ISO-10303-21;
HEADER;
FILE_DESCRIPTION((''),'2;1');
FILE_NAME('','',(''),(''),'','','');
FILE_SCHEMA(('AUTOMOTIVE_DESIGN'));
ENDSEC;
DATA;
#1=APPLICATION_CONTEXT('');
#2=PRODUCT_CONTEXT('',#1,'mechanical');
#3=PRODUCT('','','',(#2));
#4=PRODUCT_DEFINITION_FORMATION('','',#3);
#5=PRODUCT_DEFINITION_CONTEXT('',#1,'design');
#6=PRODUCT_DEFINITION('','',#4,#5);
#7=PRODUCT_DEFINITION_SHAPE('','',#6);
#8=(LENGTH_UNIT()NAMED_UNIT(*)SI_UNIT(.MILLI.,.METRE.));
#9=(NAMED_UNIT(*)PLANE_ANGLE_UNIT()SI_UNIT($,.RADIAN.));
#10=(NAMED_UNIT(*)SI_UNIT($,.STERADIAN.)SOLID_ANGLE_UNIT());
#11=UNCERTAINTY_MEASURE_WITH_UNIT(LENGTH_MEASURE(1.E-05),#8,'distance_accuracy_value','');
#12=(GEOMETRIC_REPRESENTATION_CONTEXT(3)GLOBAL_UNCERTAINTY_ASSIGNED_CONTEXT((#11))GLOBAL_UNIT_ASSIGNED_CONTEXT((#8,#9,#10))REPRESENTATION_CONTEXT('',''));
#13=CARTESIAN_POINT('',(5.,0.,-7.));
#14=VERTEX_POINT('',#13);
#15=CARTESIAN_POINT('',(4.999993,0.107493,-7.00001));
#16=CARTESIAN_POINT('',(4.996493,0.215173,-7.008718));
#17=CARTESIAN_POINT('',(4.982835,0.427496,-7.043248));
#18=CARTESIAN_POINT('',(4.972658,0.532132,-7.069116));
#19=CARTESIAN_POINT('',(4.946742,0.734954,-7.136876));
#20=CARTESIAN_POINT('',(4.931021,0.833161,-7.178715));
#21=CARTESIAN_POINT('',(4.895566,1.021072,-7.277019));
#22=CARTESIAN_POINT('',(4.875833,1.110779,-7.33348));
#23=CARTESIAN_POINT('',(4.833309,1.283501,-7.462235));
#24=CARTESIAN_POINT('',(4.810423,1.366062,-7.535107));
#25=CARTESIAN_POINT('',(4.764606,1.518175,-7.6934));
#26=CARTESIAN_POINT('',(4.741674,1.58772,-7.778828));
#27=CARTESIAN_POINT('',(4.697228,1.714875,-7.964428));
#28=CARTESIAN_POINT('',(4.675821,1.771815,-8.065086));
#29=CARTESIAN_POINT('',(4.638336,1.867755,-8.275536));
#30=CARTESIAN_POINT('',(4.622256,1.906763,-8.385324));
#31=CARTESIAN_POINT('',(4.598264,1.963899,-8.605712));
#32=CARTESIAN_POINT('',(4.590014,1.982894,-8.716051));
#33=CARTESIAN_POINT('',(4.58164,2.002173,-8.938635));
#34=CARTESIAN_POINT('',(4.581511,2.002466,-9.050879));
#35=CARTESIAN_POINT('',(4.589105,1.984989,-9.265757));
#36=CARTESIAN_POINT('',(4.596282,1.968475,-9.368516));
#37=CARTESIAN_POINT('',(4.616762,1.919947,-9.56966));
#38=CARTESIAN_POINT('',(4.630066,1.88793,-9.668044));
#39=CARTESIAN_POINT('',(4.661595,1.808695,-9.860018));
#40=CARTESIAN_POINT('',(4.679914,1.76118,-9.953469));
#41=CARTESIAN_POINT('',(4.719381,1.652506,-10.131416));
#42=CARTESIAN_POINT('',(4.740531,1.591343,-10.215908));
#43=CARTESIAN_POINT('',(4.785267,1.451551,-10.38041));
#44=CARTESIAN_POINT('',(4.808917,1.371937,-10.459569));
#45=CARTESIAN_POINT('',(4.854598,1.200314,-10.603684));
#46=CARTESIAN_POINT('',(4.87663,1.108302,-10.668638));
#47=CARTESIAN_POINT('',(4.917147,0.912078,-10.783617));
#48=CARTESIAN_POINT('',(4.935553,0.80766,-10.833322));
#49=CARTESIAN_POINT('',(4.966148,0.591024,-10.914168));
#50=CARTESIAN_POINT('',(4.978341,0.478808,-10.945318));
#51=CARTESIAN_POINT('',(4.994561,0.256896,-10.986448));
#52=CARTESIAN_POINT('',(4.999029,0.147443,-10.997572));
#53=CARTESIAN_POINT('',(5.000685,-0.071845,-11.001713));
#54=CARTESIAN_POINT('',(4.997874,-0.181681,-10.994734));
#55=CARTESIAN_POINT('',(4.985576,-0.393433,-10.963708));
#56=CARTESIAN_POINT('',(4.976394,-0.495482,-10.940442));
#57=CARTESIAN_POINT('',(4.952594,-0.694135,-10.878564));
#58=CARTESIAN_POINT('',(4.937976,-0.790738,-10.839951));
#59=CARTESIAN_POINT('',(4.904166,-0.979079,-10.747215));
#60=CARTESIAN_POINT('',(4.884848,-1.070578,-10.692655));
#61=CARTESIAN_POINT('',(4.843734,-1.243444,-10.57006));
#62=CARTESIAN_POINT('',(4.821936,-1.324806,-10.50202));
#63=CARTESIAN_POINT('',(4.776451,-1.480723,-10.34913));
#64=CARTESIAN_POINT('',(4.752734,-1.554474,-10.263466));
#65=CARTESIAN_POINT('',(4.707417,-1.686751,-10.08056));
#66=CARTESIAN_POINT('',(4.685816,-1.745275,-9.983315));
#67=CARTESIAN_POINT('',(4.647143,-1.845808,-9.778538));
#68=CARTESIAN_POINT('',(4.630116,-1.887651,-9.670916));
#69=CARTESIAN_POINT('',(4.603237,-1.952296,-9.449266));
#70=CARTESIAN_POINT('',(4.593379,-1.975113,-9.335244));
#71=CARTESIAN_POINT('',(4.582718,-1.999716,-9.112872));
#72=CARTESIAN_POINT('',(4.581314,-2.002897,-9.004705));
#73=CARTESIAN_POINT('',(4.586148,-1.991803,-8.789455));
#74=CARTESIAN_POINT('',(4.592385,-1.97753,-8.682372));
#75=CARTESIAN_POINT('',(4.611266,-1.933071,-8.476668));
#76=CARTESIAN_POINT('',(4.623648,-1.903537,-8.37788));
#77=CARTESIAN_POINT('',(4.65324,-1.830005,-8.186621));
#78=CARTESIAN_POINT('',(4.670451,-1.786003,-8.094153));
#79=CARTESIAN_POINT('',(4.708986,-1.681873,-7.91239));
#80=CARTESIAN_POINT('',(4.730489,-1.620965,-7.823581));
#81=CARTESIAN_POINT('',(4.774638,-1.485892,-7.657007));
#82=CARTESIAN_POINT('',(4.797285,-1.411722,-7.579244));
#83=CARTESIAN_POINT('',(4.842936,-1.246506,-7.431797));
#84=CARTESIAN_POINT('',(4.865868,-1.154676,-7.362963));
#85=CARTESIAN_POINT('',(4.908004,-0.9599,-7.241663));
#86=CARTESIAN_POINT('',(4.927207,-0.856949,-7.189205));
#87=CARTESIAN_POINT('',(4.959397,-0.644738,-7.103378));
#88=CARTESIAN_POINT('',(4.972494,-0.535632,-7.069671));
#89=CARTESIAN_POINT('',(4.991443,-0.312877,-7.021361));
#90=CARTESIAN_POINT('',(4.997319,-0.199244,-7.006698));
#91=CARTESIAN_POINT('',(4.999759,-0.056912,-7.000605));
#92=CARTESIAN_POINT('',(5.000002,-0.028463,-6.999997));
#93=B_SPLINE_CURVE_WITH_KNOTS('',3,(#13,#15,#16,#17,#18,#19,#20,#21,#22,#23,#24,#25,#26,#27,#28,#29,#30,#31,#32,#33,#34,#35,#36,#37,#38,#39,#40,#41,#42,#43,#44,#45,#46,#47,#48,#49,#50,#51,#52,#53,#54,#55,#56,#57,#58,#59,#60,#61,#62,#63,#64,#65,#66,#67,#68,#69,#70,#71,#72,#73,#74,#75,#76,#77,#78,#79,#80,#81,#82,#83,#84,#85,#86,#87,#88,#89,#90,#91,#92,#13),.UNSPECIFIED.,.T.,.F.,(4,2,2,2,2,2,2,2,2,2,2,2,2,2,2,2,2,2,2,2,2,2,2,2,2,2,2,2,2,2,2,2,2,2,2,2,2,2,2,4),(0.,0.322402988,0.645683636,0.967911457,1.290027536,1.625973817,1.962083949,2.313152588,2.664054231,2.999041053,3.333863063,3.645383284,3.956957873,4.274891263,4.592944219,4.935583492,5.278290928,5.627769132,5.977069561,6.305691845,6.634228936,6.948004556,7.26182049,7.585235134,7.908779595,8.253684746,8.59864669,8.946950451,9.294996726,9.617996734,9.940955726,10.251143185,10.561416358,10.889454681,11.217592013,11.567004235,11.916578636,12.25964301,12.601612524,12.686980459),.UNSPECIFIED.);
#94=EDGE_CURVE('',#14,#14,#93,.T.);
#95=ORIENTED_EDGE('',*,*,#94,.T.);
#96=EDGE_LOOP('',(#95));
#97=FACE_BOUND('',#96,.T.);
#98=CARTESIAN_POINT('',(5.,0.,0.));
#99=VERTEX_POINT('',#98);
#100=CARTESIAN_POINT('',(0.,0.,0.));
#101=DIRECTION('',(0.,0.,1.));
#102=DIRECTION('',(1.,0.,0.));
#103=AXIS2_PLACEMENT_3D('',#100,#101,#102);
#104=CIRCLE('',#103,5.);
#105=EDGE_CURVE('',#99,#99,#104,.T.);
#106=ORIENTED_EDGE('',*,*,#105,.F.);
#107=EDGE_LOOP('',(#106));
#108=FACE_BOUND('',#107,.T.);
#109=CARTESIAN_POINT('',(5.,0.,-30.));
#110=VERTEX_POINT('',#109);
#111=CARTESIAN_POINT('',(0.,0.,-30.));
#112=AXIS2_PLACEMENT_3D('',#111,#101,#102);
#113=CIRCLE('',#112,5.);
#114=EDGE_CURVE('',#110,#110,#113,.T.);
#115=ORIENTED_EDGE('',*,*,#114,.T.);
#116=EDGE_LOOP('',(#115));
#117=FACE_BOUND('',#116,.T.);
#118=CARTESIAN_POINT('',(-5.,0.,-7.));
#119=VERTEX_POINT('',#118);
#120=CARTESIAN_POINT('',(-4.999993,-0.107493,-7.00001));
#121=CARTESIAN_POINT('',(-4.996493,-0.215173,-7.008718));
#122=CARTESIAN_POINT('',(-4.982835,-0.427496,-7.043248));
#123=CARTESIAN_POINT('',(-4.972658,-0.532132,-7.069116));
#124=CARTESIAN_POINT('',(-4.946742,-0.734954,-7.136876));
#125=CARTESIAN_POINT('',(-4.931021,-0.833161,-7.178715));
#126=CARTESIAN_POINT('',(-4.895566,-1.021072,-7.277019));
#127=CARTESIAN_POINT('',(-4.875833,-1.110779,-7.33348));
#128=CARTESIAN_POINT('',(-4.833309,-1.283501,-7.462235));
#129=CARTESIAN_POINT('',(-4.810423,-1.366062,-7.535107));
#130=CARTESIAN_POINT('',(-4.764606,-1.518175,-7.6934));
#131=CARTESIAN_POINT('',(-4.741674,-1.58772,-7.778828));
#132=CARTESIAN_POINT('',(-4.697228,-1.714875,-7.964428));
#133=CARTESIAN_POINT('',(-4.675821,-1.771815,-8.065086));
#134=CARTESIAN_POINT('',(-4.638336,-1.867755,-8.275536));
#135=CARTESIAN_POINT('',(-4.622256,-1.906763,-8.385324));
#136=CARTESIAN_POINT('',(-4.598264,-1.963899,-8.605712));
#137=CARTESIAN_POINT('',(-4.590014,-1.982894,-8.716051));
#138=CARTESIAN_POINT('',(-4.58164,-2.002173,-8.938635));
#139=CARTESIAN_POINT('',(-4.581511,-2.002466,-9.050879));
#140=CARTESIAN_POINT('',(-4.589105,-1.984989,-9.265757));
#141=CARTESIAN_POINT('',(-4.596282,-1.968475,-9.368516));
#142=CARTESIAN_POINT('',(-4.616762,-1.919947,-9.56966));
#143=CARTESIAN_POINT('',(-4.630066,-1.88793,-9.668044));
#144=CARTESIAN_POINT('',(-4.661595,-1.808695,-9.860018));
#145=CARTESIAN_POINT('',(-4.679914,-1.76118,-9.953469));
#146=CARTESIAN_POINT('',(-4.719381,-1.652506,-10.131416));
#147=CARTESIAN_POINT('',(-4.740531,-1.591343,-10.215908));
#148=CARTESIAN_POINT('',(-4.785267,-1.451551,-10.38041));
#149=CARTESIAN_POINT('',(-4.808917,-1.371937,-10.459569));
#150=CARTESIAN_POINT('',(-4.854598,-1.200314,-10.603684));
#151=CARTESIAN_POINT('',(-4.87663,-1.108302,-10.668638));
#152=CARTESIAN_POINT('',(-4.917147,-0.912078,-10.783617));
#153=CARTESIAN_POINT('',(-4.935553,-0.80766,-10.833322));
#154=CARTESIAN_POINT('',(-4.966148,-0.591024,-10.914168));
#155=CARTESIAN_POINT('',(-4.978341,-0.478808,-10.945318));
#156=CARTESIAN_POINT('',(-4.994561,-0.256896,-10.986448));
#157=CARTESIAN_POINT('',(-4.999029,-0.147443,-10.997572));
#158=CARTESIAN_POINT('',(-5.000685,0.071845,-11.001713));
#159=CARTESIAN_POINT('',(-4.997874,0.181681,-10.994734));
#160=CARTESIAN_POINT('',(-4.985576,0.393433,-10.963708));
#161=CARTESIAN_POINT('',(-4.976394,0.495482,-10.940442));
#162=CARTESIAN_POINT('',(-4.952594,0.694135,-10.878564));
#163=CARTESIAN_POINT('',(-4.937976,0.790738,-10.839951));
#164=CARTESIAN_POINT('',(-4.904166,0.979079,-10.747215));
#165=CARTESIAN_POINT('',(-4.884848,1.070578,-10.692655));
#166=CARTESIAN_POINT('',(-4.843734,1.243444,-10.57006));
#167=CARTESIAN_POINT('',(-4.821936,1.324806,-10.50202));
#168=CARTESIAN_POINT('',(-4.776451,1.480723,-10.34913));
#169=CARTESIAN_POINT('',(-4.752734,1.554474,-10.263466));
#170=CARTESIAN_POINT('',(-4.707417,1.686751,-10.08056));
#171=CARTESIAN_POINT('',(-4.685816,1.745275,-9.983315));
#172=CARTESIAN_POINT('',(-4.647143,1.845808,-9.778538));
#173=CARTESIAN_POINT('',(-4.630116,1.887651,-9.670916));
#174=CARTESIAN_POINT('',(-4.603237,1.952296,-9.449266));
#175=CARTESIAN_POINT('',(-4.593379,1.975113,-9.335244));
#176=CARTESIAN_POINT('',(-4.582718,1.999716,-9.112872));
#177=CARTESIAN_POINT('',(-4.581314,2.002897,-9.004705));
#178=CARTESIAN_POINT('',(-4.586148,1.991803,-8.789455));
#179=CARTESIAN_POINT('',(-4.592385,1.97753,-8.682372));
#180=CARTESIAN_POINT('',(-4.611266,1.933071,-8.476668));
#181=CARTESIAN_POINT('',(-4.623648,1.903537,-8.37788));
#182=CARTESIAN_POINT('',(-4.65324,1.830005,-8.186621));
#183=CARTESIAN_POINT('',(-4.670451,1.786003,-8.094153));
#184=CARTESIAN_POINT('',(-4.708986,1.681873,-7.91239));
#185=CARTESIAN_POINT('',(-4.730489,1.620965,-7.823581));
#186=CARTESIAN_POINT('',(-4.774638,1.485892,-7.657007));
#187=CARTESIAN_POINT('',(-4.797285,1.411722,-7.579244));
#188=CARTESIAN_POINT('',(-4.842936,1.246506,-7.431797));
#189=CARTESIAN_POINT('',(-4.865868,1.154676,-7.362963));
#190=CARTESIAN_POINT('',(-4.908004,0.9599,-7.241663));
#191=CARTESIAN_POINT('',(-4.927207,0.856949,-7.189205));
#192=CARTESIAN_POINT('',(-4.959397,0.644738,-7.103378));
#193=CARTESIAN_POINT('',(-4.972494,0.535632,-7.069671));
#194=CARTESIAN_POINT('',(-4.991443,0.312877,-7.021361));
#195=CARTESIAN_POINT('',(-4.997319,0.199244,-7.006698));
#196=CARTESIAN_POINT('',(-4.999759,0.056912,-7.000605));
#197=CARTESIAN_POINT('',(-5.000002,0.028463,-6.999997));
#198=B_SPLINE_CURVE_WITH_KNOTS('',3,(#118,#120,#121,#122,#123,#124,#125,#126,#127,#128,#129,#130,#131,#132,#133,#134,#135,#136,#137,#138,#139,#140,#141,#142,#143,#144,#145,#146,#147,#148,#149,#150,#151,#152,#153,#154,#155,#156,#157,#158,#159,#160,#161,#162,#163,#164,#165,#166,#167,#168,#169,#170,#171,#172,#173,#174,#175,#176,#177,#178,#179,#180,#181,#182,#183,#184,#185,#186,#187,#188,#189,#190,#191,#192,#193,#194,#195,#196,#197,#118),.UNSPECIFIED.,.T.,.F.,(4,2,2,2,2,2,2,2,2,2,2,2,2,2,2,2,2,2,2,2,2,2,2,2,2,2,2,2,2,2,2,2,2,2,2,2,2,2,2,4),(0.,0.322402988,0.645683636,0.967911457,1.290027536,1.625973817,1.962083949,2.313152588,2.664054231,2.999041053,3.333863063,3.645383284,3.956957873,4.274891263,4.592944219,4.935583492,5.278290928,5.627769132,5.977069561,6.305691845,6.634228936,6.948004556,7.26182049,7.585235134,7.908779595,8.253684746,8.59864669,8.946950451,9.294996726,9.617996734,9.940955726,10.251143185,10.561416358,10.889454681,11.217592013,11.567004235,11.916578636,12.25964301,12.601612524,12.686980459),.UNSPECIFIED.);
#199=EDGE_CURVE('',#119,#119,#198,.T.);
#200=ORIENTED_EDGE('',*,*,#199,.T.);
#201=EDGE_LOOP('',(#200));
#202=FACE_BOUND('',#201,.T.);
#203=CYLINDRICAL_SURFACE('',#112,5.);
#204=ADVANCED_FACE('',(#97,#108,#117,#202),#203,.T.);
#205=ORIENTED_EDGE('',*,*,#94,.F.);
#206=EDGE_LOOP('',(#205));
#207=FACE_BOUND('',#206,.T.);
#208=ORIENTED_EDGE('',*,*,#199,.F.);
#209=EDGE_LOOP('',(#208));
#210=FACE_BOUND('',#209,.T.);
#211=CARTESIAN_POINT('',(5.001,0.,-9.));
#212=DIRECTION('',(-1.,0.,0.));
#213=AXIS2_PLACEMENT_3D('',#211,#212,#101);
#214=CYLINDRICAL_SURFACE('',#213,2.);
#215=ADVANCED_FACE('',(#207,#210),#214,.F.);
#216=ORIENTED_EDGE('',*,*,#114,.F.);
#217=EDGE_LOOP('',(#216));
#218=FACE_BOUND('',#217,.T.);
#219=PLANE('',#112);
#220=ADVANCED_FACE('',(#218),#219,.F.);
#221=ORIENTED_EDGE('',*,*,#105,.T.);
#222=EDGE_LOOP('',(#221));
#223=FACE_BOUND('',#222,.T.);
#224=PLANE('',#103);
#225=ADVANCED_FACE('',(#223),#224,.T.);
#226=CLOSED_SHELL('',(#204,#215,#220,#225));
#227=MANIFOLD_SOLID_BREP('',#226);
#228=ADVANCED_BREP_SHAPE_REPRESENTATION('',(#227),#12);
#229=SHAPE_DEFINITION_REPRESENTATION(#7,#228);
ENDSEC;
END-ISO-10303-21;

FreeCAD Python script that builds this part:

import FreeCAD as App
import Part
import Sketcher

V = App.Vector
Q = App.Units.Quantity

doc = App.newDocument("Part")
body = doc.addObject("PartDesign::Body", "Body")

sketch1 = doc.addObject("Sketcher::SketchObject", "Sketch")
body.addObject(sketch1)
sketch1.AttachmentSupport = (doc.XY_Plane, [""])
sketch1.MapMode = "FlatFace"
sketch1.addGeometry(Part.Circle(V(0, 0, 0), V(0, 0, 1), 5), False)
sketch1.addConstraint([
    Sketcher.Constraint("Coincident", 0, 3, -1, 1),
    Sketcher.Constraint("Diameter", 0, Q("10 mm")),
])
pad1 = doc.addObject("PartDesign::Pad", "Pad")
body.addObject(pad1)
pad1.Profile = sketch1
pad1.Length = 30
pad1.Reversed = True

sketch2 = doc.addObject("Sketcher::SketchObject", "Sketch001")
body.addObject(sketch2)
sketch2.AttachmentSupport = (doc.YZ_Plane, [""])
sketch2.MapMode = "FlatFace"
sketch2.AttachmentOffset = App.Placement(V(0, 0, -5), App.Rotation())
sketch2.addGeometry(Part.Circle(V(0, -9, 0), V(0, 0, 1), 2), False)
sketch2.addConstraint([
    Sketcher.Constraint("PointOnObject", 0, 3, -2),
    Sketcher.Constraint("Diameter", 0, Q("4 mm")),
    Sketcher.Constraint("DistanceY", 0, 3, -1, 1, Q("9 mm")),
])
pocket1 = doc.addObject("PartDesign::Pocket", "Pocket")
body.addObject(pocket1)
pocket1.Profile = sketch2
pocket1.Length = 10
pocket1.Reversed = True

doc.recompute()
